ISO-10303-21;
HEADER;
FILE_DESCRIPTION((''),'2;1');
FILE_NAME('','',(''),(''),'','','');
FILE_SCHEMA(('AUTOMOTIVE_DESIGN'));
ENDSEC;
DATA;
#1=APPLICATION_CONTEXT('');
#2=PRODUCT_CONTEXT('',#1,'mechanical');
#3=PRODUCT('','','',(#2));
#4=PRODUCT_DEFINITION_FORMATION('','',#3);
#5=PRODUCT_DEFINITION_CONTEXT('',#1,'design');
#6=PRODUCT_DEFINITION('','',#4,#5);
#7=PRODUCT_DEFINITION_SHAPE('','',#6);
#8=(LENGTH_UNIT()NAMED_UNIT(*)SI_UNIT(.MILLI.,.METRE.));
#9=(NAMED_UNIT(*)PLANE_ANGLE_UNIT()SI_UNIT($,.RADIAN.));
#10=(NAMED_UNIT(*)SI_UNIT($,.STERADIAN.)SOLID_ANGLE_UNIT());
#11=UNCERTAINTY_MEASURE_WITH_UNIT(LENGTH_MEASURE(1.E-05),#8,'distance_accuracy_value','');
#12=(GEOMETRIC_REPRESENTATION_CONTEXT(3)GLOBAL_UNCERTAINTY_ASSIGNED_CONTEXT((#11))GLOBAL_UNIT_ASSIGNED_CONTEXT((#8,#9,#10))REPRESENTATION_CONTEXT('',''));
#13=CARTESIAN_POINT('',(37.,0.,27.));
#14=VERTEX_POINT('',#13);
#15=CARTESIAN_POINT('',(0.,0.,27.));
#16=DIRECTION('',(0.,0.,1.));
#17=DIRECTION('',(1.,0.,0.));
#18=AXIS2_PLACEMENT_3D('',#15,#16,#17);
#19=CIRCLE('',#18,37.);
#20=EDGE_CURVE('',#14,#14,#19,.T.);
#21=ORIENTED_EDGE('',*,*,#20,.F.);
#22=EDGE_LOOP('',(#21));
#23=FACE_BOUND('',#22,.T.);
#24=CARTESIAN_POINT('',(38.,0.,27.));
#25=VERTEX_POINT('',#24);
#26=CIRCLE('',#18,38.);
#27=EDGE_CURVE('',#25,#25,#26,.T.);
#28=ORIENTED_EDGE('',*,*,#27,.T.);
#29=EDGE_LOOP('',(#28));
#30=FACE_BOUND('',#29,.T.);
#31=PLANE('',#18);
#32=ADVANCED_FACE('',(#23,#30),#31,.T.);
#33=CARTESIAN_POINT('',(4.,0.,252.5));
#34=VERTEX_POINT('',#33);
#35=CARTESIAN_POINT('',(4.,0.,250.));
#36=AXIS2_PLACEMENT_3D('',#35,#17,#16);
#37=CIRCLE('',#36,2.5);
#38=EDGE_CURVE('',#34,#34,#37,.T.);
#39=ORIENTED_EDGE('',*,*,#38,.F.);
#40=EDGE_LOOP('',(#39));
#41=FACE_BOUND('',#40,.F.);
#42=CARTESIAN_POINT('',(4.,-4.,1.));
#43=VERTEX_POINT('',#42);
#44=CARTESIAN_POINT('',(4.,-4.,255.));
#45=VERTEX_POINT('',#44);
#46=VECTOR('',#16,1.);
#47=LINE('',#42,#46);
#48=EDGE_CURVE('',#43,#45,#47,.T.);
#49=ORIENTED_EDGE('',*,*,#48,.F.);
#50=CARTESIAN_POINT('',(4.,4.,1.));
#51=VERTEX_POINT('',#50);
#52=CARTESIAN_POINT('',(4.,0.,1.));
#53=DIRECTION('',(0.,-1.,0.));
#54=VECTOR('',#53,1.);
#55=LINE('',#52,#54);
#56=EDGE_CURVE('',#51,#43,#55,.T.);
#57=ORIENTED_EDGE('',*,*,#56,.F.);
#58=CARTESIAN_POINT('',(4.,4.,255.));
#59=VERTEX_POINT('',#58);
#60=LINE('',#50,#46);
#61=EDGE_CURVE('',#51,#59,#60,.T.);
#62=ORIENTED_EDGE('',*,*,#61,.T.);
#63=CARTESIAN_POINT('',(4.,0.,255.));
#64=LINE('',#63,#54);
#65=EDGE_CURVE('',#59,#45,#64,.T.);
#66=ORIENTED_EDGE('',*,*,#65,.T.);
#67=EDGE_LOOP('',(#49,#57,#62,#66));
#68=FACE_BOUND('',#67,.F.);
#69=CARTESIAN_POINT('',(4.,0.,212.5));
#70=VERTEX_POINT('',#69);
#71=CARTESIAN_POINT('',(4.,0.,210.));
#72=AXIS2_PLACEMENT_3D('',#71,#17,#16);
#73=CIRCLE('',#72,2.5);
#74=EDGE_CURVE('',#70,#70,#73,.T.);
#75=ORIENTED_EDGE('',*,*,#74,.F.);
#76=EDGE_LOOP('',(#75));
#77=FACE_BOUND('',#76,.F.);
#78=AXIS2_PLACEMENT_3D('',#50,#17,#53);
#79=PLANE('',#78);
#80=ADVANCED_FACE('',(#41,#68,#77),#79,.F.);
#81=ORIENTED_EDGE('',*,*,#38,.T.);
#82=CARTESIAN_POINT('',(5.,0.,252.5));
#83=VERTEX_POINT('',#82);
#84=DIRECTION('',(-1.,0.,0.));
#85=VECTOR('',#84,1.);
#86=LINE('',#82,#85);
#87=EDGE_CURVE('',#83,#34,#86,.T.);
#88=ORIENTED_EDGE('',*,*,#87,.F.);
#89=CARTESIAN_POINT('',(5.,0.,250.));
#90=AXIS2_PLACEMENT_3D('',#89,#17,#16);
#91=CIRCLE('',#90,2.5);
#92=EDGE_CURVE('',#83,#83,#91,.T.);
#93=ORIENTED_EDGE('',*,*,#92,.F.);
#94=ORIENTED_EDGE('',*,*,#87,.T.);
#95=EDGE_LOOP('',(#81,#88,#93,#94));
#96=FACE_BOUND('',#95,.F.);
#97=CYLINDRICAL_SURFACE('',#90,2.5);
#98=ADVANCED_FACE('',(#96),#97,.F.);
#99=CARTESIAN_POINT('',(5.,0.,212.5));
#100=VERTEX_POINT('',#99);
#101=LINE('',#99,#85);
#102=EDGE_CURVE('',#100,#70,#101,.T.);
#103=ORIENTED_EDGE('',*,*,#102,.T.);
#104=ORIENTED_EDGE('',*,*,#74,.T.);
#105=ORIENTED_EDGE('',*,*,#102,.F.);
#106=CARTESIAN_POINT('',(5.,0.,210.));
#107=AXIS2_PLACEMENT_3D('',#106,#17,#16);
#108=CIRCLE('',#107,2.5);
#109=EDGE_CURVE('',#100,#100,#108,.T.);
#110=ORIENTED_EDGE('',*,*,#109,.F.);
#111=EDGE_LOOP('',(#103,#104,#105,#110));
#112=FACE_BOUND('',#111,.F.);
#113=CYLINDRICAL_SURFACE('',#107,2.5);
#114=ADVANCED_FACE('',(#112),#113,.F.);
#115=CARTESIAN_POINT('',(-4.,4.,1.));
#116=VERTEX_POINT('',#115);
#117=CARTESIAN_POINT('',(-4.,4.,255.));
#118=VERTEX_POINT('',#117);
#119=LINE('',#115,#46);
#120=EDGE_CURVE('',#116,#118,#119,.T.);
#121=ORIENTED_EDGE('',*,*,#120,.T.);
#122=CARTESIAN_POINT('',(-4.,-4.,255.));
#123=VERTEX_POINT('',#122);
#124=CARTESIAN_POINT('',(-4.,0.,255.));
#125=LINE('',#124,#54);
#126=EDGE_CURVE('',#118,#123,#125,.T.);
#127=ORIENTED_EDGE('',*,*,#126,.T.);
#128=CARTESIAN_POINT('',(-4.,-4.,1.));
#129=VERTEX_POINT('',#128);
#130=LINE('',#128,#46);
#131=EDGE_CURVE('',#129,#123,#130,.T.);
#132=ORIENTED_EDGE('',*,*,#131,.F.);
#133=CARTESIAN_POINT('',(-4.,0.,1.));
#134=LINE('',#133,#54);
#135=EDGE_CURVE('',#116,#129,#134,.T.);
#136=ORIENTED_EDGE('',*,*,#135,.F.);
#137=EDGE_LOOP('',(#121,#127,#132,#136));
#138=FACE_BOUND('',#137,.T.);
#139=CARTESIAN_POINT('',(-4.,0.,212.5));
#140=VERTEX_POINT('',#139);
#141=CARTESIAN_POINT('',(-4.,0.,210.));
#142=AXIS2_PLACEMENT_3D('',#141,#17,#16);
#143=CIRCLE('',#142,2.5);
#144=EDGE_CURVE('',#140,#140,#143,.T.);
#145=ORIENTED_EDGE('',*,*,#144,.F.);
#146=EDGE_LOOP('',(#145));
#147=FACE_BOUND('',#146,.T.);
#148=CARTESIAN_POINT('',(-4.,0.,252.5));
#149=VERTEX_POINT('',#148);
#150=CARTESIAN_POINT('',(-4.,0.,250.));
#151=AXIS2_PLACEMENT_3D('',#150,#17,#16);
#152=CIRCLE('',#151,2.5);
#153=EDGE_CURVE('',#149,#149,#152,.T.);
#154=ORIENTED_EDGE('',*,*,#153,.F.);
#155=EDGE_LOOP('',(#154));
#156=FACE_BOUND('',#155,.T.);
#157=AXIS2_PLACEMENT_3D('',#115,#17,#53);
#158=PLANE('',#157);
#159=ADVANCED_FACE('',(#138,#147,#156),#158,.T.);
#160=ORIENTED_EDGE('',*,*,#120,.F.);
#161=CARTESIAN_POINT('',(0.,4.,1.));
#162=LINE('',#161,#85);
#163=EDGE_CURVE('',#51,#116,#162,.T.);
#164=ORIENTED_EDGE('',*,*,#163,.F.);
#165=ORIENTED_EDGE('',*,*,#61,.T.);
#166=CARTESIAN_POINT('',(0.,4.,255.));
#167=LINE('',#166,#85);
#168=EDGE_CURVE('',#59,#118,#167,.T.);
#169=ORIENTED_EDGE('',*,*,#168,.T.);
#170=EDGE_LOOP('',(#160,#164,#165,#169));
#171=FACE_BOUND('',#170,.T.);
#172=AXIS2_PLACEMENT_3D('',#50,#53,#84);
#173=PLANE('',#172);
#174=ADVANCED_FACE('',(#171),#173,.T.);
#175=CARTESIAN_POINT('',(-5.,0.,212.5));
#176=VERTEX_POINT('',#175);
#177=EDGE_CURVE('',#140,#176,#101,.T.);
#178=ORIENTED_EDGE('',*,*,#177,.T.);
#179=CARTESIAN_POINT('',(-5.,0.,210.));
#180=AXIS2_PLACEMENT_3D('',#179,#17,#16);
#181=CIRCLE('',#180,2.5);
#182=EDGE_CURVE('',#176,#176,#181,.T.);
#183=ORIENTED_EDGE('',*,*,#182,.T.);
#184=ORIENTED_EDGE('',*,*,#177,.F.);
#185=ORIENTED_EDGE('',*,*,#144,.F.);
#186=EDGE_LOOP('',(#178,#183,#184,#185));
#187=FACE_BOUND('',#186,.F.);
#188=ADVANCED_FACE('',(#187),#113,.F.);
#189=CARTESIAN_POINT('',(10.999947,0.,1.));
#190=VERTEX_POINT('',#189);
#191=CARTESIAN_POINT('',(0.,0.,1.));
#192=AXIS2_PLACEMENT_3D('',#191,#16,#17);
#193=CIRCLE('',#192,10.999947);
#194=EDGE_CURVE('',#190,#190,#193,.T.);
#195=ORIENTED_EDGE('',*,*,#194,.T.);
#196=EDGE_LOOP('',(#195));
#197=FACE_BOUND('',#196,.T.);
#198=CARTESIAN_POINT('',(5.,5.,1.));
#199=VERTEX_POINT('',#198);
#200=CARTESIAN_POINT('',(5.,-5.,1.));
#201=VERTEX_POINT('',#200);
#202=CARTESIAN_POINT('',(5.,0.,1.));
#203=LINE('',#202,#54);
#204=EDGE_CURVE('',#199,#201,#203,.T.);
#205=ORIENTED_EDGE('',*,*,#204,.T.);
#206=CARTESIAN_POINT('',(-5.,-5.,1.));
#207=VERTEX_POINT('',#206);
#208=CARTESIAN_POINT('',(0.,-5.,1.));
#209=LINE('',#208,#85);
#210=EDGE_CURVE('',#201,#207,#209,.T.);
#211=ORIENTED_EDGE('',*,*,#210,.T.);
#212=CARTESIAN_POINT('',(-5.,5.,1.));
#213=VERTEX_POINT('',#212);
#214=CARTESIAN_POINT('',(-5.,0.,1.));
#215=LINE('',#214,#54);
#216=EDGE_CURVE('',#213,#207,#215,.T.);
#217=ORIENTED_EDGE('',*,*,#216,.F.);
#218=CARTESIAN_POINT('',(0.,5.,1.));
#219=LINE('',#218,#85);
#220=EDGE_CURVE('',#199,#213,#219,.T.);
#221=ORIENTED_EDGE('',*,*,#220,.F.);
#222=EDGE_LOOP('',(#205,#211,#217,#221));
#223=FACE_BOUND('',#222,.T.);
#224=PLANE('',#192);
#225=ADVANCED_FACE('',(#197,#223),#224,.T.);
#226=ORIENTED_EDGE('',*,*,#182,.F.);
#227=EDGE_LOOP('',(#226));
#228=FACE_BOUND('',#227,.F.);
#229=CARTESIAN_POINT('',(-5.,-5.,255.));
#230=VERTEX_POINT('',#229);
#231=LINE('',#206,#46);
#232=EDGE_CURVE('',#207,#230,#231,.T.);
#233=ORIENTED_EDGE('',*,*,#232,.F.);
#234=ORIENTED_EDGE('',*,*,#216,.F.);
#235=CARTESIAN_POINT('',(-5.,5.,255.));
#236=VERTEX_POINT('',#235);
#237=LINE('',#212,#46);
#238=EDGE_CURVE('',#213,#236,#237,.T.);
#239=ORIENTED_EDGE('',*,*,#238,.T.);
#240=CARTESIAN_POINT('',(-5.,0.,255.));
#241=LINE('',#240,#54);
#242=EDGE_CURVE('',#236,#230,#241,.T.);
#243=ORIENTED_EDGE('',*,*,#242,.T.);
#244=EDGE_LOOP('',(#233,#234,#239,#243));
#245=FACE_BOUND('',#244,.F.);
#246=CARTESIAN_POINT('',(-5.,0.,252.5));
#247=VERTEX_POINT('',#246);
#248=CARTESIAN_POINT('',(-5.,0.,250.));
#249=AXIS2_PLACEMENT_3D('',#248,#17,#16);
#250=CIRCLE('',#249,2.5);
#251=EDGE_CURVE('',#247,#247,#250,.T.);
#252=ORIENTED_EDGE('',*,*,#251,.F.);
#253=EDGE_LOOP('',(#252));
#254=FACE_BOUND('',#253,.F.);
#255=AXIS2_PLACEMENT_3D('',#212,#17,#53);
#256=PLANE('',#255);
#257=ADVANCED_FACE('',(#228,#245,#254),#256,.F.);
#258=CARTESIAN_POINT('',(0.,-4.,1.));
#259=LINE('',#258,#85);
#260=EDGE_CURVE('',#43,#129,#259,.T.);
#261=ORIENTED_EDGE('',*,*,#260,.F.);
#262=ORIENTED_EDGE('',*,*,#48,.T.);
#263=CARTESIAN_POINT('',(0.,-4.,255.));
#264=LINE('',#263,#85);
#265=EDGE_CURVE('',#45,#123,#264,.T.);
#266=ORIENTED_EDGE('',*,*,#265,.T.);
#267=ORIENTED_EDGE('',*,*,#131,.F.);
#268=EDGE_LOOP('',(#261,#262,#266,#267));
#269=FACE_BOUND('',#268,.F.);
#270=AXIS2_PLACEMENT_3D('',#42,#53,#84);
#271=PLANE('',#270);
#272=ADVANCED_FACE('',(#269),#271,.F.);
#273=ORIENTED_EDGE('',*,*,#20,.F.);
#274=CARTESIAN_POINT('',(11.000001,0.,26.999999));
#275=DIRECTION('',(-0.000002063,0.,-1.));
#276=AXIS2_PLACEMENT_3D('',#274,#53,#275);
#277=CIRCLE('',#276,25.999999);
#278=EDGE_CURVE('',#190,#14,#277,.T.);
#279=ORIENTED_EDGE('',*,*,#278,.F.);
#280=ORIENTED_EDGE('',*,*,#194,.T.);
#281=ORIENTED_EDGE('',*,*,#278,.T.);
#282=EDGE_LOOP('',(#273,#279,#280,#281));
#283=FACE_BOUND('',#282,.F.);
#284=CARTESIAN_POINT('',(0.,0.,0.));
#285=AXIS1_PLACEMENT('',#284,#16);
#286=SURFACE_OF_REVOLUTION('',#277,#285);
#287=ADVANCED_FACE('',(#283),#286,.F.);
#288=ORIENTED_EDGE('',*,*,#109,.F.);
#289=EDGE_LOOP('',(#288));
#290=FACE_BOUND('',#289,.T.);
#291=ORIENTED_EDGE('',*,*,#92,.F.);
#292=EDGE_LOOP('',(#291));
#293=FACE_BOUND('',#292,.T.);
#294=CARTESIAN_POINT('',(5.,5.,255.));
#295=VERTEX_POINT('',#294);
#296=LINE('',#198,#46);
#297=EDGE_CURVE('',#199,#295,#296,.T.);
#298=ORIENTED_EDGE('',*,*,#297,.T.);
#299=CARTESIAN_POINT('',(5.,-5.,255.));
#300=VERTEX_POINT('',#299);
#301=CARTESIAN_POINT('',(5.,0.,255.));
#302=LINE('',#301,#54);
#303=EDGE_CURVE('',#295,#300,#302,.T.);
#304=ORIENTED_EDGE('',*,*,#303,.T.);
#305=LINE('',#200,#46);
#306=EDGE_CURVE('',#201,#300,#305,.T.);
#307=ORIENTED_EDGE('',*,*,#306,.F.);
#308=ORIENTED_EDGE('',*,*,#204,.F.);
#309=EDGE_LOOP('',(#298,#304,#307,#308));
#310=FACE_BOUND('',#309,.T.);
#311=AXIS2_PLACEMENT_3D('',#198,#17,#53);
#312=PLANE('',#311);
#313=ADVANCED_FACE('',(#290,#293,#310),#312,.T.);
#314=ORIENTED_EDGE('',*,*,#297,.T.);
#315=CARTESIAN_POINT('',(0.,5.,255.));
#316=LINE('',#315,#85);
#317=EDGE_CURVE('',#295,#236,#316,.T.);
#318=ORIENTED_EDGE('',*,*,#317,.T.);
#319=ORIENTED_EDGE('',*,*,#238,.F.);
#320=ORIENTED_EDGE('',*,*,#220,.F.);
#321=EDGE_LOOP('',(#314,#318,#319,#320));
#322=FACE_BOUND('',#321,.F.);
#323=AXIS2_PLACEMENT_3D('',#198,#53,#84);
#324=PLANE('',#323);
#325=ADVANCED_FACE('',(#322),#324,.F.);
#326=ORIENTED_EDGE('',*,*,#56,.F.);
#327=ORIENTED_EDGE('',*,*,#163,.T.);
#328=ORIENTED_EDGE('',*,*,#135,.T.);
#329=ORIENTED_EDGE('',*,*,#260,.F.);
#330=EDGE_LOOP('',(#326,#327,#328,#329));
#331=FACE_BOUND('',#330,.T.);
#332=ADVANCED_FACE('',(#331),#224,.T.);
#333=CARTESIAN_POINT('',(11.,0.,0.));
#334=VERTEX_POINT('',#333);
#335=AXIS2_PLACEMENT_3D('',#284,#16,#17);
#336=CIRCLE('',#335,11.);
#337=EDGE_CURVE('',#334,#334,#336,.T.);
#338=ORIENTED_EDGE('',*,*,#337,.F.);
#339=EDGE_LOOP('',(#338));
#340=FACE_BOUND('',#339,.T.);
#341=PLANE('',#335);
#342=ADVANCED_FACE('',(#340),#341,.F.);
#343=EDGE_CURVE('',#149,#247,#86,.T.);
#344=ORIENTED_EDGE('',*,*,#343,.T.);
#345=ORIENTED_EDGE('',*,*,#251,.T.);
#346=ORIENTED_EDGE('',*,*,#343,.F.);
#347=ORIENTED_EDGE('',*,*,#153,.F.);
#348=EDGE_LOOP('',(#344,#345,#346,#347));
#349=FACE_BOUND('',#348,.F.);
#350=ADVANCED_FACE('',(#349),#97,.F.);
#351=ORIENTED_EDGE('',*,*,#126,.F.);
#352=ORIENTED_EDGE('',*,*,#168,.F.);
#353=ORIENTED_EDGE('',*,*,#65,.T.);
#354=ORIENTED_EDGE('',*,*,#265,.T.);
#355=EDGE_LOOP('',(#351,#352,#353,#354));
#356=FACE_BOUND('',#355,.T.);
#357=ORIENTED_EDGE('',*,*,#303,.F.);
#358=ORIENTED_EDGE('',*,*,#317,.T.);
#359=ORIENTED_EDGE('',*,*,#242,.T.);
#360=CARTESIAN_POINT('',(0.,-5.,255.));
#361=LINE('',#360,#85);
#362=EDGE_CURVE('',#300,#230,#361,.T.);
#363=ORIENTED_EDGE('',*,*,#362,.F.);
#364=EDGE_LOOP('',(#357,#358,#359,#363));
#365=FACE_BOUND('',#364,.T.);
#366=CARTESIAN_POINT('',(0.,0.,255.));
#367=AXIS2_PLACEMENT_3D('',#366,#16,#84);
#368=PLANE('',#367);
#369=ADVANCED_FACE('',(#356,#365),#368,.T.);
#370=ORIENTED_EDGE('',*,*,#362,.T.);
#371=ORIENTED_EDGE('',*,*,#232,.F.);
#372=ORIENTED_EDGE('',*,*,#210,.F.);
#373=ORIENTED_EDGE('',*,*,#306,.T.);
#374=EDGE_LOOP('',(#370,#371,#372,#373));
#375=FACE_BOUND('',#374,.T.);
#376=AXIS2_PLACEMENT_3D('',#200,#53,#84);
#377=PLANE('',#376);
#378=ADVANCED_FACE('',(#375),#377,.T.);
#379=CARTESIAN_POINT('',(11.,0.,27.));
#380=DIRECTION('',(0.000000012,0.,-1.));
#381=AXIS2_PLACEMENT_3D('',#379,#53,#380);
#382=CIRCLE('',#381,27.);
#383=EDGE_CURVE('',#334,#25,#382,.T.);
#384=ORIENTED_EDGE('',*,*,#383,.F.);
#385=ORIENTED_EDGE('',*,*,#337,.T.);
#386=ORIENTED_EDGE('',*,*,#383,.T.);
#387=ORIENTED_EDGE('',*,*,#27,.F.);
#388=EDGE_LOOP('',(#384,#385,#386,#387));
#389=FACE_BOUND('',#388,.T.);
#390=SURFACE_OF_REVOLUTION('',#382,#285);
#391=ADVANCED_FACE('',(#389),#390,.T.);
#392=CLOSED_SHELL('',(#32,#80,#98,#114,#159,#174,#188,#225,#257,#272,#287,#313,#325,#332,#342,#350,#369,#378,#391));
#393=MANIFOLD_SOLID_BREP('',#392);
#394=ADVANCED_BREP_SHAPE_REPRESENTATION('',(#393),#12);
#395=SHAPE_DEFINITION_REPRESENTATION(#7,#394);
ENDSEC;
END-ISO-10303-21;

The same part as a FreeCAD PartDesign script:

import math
import FreeCAD as App
import Part
import Sketcher

V = App.Vector


def add_polygon(sketch, points):
    """Adds a closed chain of lines whose ends are joined by coincident constraints."""
    first, n = sketch.GeometryCount, len(points)
    for a, b in zip(points, points[1:] + points[:1]):
        sketch.addGeometry(Part.LineSegment(App.Vector(*a, 0), App.Vector(*b, 0)), False)
    for i in range(n):
        sketch.addConstraint(Sketcher.Constraint("Coincident", first + i, 2, first + (i + 1) % n, 1))

doc = App.newDocument("Part")
body = doc.addObject("PartDesign::Body", "Body")

# Sketch on XZ plane
sketch1 = body.newObject("Sketcher::SketchObject", "Sketch")
sketch1.AttachmentSupport = (doc.getObject("XZ_Plane"), [""])
sketch1.MapMode = "FlatFace"
sketch1.addGeometry(Part.LineSegment(V(0, 0, 0), V(11, 0, 0)), False)
sketch1.addGeometry(Part.ArcOfCircle(Part.Circle(V(11, 27, 0), V(0, 0, 1), 27), math.radians(-90), math.radians(0)), False)
sketch1.addGeometry(Part.LineSegment(V(38, 27, 0), V(37, 27, 0)), False)
sketch1.addGeometry(Part.ArcOfCircle(Part.Circle(V(11, 27, 0), V(0, 0, 1), 26), math.radians(-90), math.radians(0)), False)
sketch1.addGeometry(Part.LineSegment(V(11, 1, 0), V(0, 1, 0)), False)
sketch1.addGeometry(Part.LineSegment(V(0, 1, 0), V(0, 0, 0)), False)
sketch1.addConstraint(Sketcher.Constraint("Tangent", 0, 2, 1, 1))
sketch1.addConstraint(Sketcher.Constraint("Coincident", 1, 2, 2, 1))
sketch1.addConstraint(Sketcher.Constraint("Coincident", 2, 2, 3, 2))
sketch1.addConstraint(Sketcher.Constraint("Coincident", 3, 1, 4, 1))
sketch1.addConstraint(Sketcher.Constraint("Coincident", 4, 2, 5, 1))
sketch1.addConstraint(Sketcher.Constraint("Coincident", 5, 2, 0, 1))
sketch1.addConstraint(Sketcher.Constraint("Horizontal", 0))
sketch1.addConstraint(Sketcher.Constraint("Horizontal", 2))
sketch1.addConstraint(Sketcher.Constraint("Horizontal", 4))
sketch1.addConstraint(Sketcher.Constraint("Vertical", 5))
sketch1.addConstraint(Sketcher.Constraint("Coincident", 5, 2, -1, 1))
sketch1.addConstraint(Sketcher.Constraint("Coincident", 3, 3, 1, 3))
sketch1.addConstraint(Sketcher.Constraint("Horizontal", 3, 3, 1, 2))
sketch1.addConstraint(Sketcher.Constraint("Radius", 1, 27.0))
sketch1.addConstraint(Sketcher.Constraint("Radius", 3, 25.999999))
sketch1.addConstraint(Sketcher.Constraint("DistanceX", 0, 1, 0, 2, 11.0))
sketch1.addConstraint(Sketcher.Constraint("DistanceX", 4, 2, 4, 1, 10.999947))
revolution = body.newObject("PartDesign::Revolution", "Revolution")
revolution.Profile = sketch1
revolution.ReferenceAxis = (sketch1, ["V_Axis"])
revolution.Angle = 360

# Sketch on XY plane
sketch2 = body.newObject("Sketcher::SketchObject", "Sketch001")
sketch2.AttachmentSupport = (doc.getObject("XY_Plane"), [""])
sketch2.MapMode = "FlatFace"
sketch2.AttachmentOffset = App.Placement(V(0, 0, 1), App.Rotation())
add_polygon(sketch2, [(5, -5), (5, 5), (-5, 5), (-5, -5)])  # lines 0-3
add_polygon(sketch2, [(-4, 4), (4, 4), (4, -4), (-4, -4)])  # lines 4-7
sketch2.addConstraint(Sketcher.Constraint("Vertical", 0))
sketch2.addConstraint(Sketcher.Constraint("Horizontal", 1))
sketch2.addConstraint(Sketcher.Constraint("Vertical", 2))
sketch2.addConstraint(Sketcher.Constraint("Horizontal", 3))
sketch2.addConstraint(Sketcher.Constraint("Horizontal", 4))
sketch2.addConstraint(Sketcher.Constraint("Vertical", 5))
sketch2.addConstraint(Sketcher.Constraint("Horizontal", 6))
sketch2.addConstraint(Sketcher.Constraint("Vertical", 7))
sketch2.addConstraint(Sketcher.Constraint("Symmetric", 0, 2, 2, 2, -1, 1))
sketch2.addConstraint(Sketcher.Constraint("Symmetric", 4, 2, 6, 2, -1, 1))
sketch2.addConstraint(Sketcher.Constraint("Equal", 3, 0))
sketch2.addConstraint(Sketcher.Constraint("Equal", 6, 5))
sketch2.addConstraint(Sketcher.Constraint("DistanceX", 1, 2, 1, 1, 10.0))
sketch2.addConstraint(Sketcher.Constraint("DistanceX", 4, 1, 4, 2, 8.0))
pad1 = body.newObject("PartDesign::Pad", "Pad")
pad1.Profile = sketch2
pad1.Length = 254

# Sketch on YZ plane
sketch3 = body.newObject("Sketcher::SketchObject", "Sketch002")
sketch3.AttachmentSupport = (doc.getObject("YZ_Plane"), [""])
sketch3.MapMode = "FlatFace"
sketch3.AttachmentOffset = App.Placement(V(0, 0, 5), App.Rotation())
sketch3.addGeometry(Part.Circle(V(0, 250, 0), V(0, 0, 1), 2.5), False)
sketch3.addGeometry(Part.Circle(V(0, 210, 0), V(0, 0, 1), 2.5), False)
sketch3.addConstraint(Sketcher.Constraint("Equal", 0, 1))
sketch3.addConstraint(Sketcher.Constraint("PointOnObject", 0, 3, -2))
sketch3.addConstraint(Sketcher.Constraint("PointOnObject", 1, 3, -2))
sketch3.addConstraint(Sketcher.Constraint("Diameter", 0, 5.0))
sketch3.addConstraint(Sketcher.Constraint("DistanceY", -1, 1, 0, 3, 250.0))
sketch3.addConstraint(Sketcher.Constraint("DistanceY", -1, 1, 1, 3, 210.0))
pocket1 = body.newObject("PartDesign::Pocket", "Pocket")
pocket1.Profile = sketch3
pocket1.Type = "ThroughAll"

doc.recompute()
